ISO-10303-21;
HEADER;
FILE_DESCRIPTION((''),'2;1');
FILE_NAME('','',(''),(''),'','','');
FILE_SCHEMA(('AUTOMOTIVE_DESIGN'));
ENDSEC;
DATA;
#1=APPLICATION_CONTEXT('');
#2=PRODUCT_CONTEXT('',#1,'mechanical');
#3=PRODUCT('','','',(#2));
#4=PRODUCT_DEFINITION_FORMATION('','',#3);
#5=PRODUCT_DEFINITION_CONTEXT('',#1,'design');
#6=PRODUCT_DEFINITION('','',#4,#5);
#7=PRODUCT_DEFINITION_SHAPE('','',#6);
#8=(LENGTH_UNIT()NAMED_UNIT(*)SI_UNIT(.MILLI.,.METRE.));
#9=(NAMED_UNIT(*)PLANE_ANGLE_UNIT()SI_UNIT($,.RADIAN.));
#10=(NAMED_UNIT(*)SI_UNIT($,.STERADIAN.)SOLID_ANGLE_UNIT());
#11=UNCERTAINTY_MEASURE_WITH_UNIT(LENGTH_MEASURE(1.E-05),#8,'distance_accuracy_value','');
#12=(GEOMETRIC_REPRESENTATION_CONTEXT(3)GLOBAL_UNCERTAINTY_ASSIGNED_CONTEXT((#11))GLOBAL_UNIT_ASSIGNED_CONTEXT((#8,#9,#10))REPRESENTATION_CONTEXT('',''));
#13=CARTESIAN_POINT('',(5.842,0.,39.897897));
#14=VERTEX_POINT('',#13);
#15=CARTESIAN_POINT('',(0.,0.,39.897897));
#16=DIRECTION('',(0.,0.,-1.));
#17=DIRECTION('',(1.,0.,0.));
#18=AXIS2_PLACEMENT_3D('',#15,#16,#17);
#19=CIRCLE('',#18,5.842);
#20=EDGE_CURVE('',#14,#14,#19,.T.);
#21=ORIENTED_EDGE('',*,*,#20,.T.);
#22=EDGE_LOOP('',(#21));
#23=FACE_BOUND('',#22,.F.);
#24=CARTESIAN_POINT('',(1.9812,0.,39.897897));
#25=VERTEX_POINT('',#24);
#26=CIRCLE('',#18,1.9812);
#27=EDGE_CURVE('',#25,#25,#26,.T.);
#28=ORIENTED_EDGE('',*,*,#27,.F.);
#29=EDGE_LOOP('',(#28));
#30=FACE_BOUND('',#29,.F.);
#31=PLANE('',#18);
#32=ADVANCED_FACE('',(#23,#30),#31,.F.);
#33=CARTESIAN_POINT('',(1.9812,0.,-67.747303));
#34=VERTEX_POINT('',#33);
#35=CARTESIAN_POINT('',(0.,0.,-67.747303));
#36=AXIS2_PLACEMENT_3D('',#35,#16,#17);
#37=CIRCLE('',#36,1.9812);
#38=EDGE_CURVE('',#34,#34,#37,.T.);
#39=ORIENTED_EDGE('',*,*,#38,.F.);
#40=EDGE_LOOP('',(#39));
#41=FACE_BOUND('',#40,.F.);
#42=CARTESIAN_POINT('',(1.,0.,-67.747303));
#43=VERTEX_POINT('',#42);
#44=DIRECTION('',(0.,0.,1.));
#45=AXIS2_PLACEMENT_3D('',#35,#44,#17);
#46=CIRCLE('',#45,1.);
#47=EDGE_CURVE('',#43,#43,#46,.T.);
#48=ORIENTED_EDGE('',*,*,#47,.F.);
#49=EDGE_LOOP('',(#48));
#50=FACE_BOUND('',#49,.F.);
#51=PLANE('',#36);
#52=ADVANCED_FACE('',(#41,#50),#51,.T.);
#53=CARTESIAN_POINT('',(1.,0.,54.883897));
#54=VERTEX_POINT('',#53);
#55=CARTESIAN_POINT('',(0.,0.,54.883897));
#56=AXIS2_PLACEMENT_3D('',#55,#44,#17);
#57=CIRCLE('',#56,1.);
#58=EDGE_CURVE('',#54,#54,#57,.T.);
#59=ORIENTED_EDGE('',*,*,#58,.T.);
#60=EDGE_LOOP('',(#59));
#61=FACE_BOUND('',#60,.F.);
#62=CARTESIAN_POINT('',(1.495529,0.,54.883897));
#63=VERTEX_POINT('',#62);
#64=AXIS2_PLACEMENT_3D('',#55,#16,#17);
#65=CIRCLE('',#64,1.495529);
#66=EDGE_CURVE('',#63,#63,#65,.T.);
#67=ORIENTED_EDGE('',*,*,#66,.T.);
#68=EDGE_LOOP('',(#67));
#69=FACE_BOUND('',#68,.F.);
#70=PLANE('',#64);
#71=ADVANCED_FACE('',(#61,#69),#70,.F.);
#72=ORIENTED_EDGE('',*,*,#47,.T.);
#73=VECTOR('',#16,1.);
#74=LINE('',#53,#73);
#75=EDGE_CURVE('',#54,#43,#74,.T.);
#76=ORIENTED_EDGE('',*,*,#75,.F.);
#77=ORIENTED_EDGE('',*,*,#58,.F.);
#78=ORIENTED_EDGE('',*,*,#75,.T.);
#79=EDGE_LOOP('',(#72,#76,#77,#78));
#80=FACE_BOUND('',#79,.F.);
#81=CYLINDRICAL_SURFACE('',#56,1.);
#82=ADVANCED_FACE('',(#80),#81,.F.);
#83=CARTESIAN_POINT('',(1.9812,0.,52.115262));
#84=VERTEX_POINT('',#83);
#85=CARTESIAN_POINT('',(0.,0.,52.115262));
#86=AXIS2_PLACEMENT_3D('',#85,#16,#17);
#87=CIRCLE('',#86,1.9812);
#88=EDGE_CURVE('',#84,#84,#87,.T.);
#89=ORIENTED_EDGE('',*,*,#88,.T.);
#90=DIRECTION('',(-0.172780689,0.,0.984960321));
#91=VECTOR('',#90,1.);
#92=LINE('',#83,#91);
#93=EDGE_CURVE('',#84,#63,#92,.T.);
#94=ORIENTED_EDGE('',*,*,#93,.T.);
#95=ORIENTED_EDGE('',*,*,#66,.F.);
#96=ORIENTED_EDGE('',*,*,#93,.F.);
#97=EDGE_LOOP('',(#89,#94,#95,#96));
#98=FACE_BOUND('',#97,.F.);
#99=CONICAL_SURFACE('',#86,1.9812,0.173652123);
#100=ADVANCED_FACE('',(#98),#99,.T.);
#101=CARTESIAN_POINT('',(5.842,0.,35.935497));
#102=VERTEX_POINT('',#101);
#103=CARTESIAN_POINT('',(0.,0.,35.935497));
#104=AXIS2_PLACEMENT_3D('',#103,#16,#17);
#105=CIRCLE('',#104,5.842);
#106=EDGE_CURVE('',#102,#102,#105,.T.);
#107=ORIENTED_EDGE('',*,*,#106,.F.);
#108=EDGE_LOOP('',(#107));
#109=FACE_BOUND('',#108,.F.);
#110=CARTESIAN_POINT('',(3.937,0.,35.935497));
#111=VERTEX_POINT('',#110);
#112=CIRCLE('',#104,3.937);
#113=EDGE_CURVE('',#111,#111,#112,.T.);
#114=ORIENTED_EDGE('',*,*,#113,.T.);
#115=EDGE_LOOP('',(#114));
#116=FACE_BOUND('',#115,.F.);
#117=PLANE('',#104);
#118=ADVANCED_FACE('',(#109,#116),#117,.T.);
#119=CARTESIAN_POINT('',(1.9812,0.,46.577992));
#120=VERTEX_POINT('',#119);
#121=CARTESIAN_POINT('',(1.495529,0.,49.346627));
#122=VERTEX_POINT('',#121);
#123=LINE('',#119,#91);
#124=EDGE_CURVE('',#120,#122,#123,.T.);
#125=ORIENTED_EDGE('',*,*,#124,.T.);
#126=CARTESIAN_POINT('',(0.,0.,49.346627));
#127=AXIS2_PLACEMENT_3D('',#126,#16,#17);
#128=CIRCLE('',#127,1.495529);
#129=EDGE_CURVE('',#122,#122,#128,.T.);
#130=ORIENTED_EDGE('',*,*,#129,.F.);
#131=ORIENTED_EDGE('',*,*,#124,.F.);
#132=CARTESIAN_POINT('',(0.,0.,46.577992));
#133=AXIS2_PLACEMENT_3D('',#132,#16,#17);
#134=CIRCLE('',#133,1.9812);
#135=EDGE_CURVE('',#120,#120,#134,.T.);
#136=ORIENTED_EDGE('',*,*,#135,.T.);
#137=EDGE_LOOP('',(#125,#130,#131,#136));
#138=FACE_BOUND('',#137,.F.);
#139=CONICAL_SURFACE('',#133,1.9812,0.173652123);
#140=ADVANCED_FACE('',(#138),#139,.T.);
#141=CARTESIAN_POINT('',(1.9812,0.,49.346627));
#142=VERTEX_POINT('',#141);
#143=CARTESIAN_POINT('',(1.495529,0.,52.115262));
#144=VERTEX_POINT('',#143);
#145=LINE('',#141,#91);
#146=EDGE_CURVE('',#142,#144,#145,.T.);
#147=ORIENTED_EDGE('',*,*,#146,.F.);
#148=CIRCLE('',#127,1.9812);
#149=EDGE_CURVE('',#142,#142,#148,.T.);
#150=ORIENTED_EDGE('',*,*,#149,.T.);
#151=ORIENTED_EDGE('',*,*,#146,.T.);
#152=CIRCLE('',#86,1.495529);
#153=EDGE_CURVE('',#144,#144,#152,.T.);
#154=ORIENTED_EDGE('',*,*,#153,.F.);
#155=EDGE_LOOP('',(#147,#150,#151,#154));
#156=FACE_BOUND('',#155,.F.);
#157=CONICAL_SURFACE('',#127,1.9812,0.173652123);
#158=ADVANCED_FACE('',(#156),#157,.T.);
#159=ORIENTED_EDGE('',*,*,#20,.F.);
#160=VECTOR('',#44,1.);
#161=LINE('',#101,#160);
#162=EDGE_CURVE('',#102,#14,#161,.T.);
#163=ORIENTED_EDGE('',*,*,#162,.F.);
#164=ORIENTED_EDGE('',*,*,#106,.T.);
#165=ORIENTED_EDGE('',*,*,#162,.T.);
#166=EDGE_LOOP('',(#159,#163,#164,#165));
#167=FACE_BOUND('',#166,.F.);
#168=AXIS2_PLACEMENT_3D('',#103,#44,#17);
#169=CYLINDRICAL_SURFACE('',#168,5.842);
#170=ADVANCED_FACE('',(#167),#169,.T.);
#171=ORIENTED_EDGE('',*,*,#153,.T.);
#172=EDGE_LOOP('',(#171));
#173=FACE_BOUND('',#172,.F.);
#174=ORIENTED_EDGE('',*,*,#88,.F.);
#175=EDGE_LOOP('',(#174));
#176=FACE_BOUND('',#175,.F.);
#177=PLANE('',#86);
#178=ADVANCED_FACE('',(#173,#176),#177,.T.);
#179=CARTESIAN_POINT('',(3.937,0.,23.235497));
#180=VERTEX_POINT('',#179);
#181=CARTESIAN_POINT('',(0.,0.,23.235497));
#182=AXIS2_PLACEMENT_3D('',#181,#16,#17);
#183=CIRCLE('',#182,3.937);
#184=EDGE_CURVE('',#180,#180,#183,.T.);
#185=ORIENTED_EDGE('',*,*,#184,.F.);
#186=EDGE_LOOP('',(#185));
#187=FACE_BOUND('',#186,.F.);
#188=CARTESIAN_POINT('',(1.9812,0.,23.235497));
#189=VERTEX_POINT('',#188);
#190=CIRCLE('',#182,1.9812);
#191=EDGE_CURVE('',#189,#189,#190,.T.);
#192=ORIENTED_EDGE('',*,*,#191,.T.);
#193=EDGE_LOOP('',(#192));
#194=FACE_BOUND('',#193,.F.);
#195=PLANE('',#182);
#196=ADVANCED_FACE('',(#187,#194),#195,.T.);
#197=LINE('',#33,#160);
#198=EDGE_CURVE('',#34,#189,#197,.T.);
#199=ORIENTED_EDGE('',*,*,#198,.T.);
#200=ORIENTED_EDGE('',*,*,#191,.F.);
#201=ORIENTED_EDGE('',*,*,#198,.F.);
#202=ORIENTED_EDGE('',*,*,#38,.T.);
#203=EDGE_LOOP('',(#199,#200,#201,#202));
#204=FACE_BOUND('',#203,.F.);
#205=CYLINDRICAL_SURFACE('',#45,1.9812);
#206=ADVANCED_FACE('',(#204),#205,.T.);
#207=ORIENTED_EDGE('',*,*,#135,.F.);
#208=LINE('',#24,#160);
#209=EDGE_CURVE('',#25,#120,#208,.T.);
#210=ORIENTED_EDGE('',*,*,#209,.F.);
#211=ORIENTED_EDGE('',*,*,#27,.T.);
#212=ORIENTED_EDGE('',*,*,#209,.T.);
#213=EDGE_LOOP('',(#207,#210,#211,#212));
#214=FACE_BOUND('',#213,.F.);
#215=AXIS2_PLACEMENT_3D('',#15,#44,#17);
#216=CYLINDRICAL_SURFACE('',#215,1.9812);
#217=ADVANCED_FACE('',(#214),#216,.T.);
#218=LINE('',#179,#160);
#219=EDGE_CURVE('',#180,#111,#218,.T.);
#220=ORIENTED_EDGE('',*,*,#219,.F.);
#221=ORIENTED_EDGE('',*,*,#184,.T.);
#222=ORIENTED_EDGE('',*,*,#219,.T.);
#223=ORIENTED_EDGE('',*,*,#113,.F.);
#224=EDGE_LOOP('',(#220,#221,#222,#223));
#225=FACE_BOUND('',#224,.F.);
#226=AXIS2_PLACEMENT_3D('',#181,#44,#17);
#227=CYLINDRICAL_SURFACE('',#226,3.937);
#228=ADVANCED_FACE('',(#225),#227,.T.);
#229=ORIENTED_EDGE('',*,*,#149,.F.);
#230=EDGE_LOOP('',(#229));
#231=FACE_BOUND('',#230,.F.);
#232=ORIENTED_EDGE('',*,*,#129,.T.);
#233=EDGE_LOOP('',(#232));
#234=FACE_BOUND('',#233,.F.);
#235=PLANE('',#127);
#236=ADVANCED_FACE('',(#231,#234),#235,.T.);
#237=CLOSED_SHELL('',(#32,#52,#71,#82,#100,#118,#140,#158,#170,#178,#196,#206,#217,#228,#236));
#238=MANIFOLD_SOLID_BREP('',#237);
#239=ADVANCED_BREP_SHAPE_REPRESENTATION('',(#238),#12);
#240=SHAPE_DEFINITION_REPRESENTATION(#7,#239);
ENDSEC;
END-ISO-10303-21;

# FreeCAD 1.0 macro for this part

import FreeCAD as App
import Part
import Sketcher

V = App.Vector
Q = App.Units.Quantity

doc = App.newDocument("Part")
params = doc.addObject("Spreadsheet::Sheet", "Params")
for row, (alias, value) in enumerate([
    ("sketch1_height", "0.5 in"),
    ("sketch1_width", "0.078 in"),
    ("sketch1_width2", "0.077 in"),
    ("sketch1_width3", "0.075 in"),
    ("sketch1_height2", "4.828 in"),
    ("revolution_angle", "360 deg"),
], start=1):
    params.set(f"A{row}", alias)
    params.set(f"B{row}", "=" + value)
    params.setAlias(f"B{row}", alias)

body = doc.addObject("PartDesign::Body", "Body")

# Sketch on XZ plane
sketch1 = body.newObject("Sketcher::SketchObject", "Sketch")
sketch1.AttachmentSupport = (doc.getObject("XZ_Plane"), [""])
sketch1.MapMode = "FlatFace"
sketch1.addGeometry([
    Part.LineSegment(V(1.5, 54.88, 0), V(0, 54.88, 0)),  # 0
    Part.LineSegment(V(0, 54.88, 0), V(0, -67.75, 0)),  # 1
    Part.LineSegment(V(0, -67.75, 0), V(1.98, -67.75, 0)),  # 2
    Part.LineSegment(V(1.98, -67.75, 0), V(1.98, 23.24, 0)),  # 3
    Part.LineSegment(V(1.98, 23.24, 0), V(3.94, 23.24, 0)),  # 4
    Part.LineSegment(V(3.94, 23.24, 0), V(3.94, 35.94, 0)),  # 5
    Part.LineSegment(V(3.94, 35.94, 0), V(5.84, 35.94, 0)),  # 6
    Part.LineSegment(V(5.84, 35.94, 0), V(5.84, 39.9, 0)),  # 7
    Part.LineSegment(V(5.84, 39.9, 0), V(1.98, 39.9, 0)),  # 8
    Part.LineSegment(V(1.98, 39.9, 0), V(1.98, 46.58, 0)),  # 9
    Part.LineSegment(V(1.98, 46.58, 0), V(1.5, 49.35, 0)),  # 10
    Part.LineSegment(V(1.5, 49.35, 0), V(1.98, 49.35, 0)),  # 11
    Part.LineSegment(V(1.98, 49.35, 0), V(1.5, 52.12, 0)),  # 12
    Part.LineSegment(V(1.5, 52.12, 0), V(1.98, 52.12, 0)),  # 13
    Part.LineSegment(V(1.98, 52.12, 0), V(1.5, 54.88, 0)),  # 14
], False)
sketch1.addConstraint([
    Sketcher.Constraint("Coincident", 0, 2, 1, 1),
    Sketcher.Constraint("Coincident", 1, 2, 2, 1),
    Sketcher.Constraint("Coincident", 2, 2, 3, 1),
    Sketcher.Constraint("Coincident", 3, 2, 4, 1),
    Sketcher.Constraint("Coincident", 4, 2, 5, 1),
    Sketcher.Constraint("Coincident", 5, 2, 6, 1),
    Sketcher.Constraint("Coincident", 6, 2, 7, 1),
    Sketcher.Constraint("Coincident", 7, 2, 8, 1),
    Sketcher.Constraint("Coincident", 8, 2, 9, 1),
    Sketcher.Constraint("Coincident", 9, 2, 10, 1),
    Sketcher.Constraint("Coincident", 10, 2, 11, 1),
    Sketcher.Constraint("Coincident", 11, 2, 12, 1),
    Sketcher.Constraint("Coincident", 12, 2, 13, 1),
    Sketcher.Constraint("Coincident", 13, 2, 14, 1),
    Sketcher.Constraint("Coincident", 14, 2, 0, 1),
    Sketcher.Constraint("Horizontal", 0),
    Sketcher.Constraint("Vertical", 1),
    Sketcher.Constraint("Horizontal", 2),
    Sketcher.Constraint("Vertical", 3),
    Sketcher.Constraint("Horizontal", 4),
    Sketcher.Constraint("Vertical", 5),
    Sketcher.Constraint("Horizontal", 6),
    Sketcher.Constraint("Vertical", 7),
    Sketcher.Constraint("Horizontal", 8),
    Sketcher.Constraint("Vertical", 9),
    Sketcher.Constraint("Horizontal", 11),
    Sketcher.Constraint("Horizontal", 13),
    Sketcher.Constraint("PointOnObject", 0, 2, -2),
    Sketcher.Constraint("Parallel", 10, 12),
    Sketcher.Constraint("Parallel", 12, 14),
    Sketcher.Constraint("Vertical", 3, 2, 8, 2),
    Sketcher.Constraint("Vertical", 9, 2, 11, 2),
    Sketcher.Constraint("Vertical", 10, 2, 12, 2),
    Sketcher.Constraint("Vertical", 11, 2, 13, 2),
    Sketcher.Constraint("Vertical", 12, 2, 14, 2),
    Sketcher.Constraint("DistanceY", 5, 1, 5, 2, Q("0.5 in")),
    Sketcher.Constraint("DistanceX", 2, 1, 2, 2, Q("0.078 in")),
    Sketcher.Constraint("DistanceX", 4, 1, 4, 2, Q("0.077 in")),
    Sketcher.Constraint("DistanceX", 6, 1, 6, 2, Q("0.075 in")),
    Sketcher.Constraint("DistanceY", 1, 2, 1, 1, Q("4.828 in")),
    Sketcher.Constraint("DistanceY", 3, 1, 3, 2, Q("3.582 in")),
    Sketcher.Constraint("DistanceY", 7, 1, 7, 2, Q("0.156 in")),
    Sketcher.Constraint("DistanceX", 0, 2, 0, 1, 1.495529),
    Sketcher.Constraint("Distance", 10, 2.81091),
    Sketcher.Constraint("DistanceY", -1, 1, 0, 2, 54.883897),
])
sketch1.setExpression("Constraints[35]", "Params.sketch1_height")
sketch1.setExpression("Constraints[36]", "Params.sketch1_width")
sketch1.setExpression("Constraints[37]", "Params.sketch1_width2")
sketch1.setExpression("Constraints[38]", "Params.sketch1_width3")
sketch1.setExpression("Constraints[39]", "Params.sketch1_height2")
revolution = body.newObject("PartDesign::Revolution", "Revolution")
revolution.Profile = sketch1
revolution.ReferenceAxis = (sketch1, ["V_Axis"])
revolution.setExpression("Angle", "Params.revolution_angle")

# Sketch on XY plane
sketch2 = body.newObject("Sketcher::SketchObject", "Sketch001")
sketch2.AttachmentSupport = (doc.getObject("XY_Plane"), [""])
sketch2.MapMode = "FlatFace"
sketch2.AttachmentOffset = App.Placement(V(0, 0, 54.883897), App.Rotation())
sketch2.addGeometry(Part.Circle(V(0, 0, 0), V(0, 0, 1), 1), False)
sketch2.addConstraint([
    Sketcher.Constraint("Coincident", 0, 3, -1, 1),
    Sketcher.Constraint("Diameter", 0, 2.0),
])
pocket1 = body.newObject("PartDesign::Pocket", "Pocket")
pocket1.Profile = sketch2
pocket1.Type = "ThroughAll"

doc.recompute()
